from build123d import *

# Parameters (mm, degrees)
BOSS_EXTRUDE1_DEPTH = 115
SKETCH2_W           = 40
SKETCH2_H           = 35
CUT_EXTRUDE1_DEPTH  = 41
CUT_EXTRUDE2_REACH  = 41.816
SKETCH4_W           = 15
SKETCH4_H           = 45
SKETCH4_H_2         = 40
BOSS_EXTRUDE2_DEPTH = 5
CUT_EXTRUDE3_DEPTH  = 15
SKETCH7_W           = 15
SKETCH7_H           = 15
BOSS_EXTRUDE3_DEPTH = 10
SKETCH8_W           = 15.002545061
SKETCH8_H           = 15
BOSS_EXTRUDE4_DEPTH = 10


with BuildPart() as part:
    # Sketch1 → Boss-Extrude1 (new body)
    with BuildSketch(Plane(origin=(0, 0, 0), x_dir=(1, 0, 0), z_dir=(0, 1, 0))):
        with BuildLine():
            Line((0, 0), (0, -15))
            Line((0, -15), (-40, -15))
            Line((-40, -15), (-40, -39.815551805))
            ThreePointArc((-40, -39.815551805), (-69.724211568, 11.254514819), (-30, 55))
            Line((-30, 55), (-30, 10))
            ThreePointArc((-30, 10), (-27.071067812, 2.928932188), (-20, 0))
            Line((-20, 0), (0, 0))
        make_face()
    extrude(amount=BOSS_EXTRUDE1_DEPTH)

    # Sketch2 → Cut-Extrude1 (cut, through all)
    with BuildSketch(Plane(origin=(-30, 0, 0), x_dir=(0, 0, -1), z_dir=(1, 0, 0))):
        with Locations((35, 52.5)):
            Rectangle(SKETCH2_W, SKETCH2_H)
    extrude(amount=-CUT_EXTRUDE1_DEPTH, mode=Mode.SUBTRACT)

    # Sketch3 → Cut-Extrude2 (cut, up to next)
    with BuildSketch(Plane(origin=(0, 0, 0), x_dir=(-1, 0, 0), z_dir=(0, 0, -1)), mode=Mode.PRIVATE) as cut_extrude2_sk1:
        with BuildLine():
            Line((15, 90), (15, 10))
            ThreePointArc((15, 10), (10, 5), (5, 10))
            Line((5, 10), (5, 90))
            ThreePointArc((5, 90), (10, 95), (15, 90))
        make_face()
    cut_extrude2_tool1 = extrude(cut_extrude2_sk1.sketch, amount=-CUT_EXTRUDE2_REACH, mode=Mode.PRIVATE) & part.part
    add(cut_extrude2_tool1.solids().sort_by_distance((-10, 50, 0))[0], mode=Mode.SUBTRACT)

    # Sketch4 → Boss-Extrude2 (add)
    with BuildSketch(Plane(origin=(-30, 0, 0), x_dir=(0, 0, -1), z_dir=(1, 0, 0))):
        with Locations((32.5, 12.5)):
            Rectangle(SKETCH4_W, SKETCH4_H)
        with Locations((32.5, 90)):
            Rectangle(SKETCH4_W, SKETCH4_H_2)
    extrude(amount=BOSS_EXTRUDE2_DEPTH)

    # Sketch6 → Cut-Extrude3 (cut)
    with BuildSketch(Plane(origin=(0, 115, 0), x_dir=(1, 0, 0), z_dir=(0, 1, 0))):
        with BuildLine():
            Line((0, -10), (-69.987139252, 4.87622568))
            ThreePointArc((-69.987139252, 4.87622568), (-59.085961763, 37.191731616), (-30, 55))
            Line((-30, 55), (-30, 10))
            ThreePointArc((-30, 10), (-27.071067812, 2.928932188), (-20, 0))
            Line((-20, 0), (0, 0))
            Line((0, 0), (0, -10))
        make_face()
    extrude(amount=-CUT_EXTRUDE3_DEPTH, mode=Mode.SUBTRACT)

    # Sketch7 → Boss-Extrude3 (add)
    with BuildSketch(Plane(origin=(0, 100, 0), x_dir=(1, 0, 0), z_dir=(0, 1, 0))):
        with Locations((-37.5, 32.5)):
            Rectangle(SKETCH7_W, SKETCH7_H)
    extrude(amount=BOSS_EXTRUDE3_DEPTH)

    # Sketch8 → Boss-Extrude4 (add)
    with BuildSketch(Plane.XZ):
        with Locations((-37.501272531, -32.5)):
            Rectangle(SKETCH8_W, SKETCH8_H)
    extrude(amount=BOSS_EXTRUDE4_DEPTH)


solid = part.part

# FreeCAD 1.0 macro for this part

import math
import FreeCAD as App
import Part
import Sketcher
from FreeCAD import Vector
Q = App.Units.Quantity

doc = App.newDocument("Part")
body = doc.addObject("PartDesign::Body", "Body")

# Sketch on XZ plane
sketch1 = body.newObject("Sketcher::SketchObject", "Sketch")
sketch1.AttachmentSupport = (doc.getObject("XZ_Plane"), [""])
sketch1.MapMode = "FlatFace"
sketch1.addGeometry([
    Part.LineSegment(Vector(0, 15, 0), Vector(0, 0, 0)),  # 0
    Part.LineSegment(Vector(0, 0, 0), Vector(-20, 0, 0)),  # 1
    Part.ArcOfCircle(Part.Circle(Vector(-20, -10, 0), Vector(0, 0, 1), 10), math.radians(90), math.radians(180)),  # 2
    Part.LineSegment(Vector(-30, -10, 0), Vector(-30, -55, 0)),  # 3
    Part.ArcOfCircle(Part.Circle(Vector(-20, -6, 0), Vector(0, 0, 1), 50), math.radians(114), math.radians(258)),  # 4
    Part.LineSegment(Vector(-40, 40, 0), Vector(-40, 15, 0)),  # 5
    Part.LineSegment(Vector(-40, 15, 0), Vector(0, 15, 0)),  # 6
], False)
sketch1.addConstraint([
    Sketcher.Constraint("Coincident", 0, 2, 1, 1),
    Sketcher.Constraint("Tangent", 1, 2, 2, 1),
    Sketcher.Constraint("Tangent", 2, 2, 3, 1),
    Sketcher.Constraint("Coincident", 3, 2, 4, 2),
    Sketcher.Constraint("Coincident", 4, 1, 5, 1),
    Sketcher.Constraint("Coincident", 5, 2, 6, 1),
    Sketcher.Constraint("Coincident", 6, 2, 0, 1),
    Sketcher.Constraint("Vertical", 0),
    Sketcher.Constraint("Horizontal", 1),
    Sketcher.Constraint("Vertical", 3),
    Sketcher.Constraint("Vertical", 5),
    Sketcher.Constraint("Horizontal", 6),
    Sketcher.Constraint("Coincident", 0, 2, -1, 1),
    Sketcher.Constraint("Vertical", 2, 3, 4, 3),
    Sketcher.Constraint("Radius", 2, Q("10 mm")),
    Sketcher.Constraint("Radius", 4, Q("50 mm")),
    Sketcher.Constraint("DistanceX", 1, 2, 1, 1, Q("20 mm")),
    Sketcher.Constraint("DistanceX", 6, 1, 6, 2, Q("40 mm")),
    Sketcher.Constraint("DistanceY", 0, 2, 0, 1, Q("15 mm")),
    Sketcher.Constraint("DistanceY", 3, 2, 3, 1, Q("45 mm")),
])
pad1 = body.newObject("PartDesign::Pad", "Pad")
pad1.Profile = sketch1
pad1.Length = 115
pad1.Reversed = True

# Sketch on YZ plane
sketch2 = body.newObject("Sketcher::SketchObject", "Sketch001")
sketch2.AttachmentSupport = (doc.getObject("YZ_Plane"), [""])
sketch2.MapMode = "FlatFace"
sketch2.AttachmentOffset = App.Placement(Vector(0, 0, -30), App.Rotation())
sketch2.addGeometry([
    Part.LineSegment(Vector(70, -15, 0), Vector(35, -15, 0)),
    Part.LineSegment(Vector(35, -15, 0), Vector(35, -55, 0)),
    Part.LineSegment(Vector(35, -55, 0), Vector(70, -55, 0)),
    Part.LineSegment(Vector(70, -55, 0), Vector(70, -15, 0)),
], False)
sketch2.addConstraint([
    Sketcher.Constraint("Coincident", 0, 2, 1, 1),
    Sketcher.Constraint("Coincident", 1, 2, 2, 1),
    Sketcher.Constraint("Coincident", 2, 2, 3, 1),
    Sketcher.Constraint("Coincident", 3, 2, 0, 1),
    Sketcher.Constraint("Horizontal", 0),
    Sketcher.Constraint("Vertical", 1),
    Sketcher.Constraint("Horizontal", 2),
    Sketcher.Constraint("Vertical", 3),
    Sketcher.Constraint("DistanceX", 0, 2, 0, 1, Q("35 mm")),
    Sketcher.Constraint("DistanceY", 1, 2, 1, 1, Q("40 mm")),
    Sketcher.Constraint("DistanceX", -1, 1, 0, 2, Q("35 mm")),
    Sketcher.Constraint("DistanceY", 0, 2, -1, 1, Q("15 mm")),
])
pocket1 = body.newObject("PartDesign::Pocket", "Pocket")
pocket1.Profile = sketch2
pocket1.Type = "ThroughAll"

# Sketch on XY plane
sketch3 = body.newObject("Sketcher::SketchObject", "Sketch002")
sketch3.AttachmentSupport = (doc.getObject("XY_Plane"), [""])
sketch3.MapMode = "FlatFace"
sketch3.addGeometry([
    Part.LineSegment(Vector(-15, 10, 0), Vector(-15, 90, 0)),
    Part.ArcOfCircle(Part.Circle(Vector(-10, 90, 0), Vector(0, 0, 1), 5), math.radians(0), math.radians(180)),
    Part.LineSegment(Vector(-5, 90, 0), Vector(-5, 10, 0)),
    Part.ArcOfCircle(Part.Circle(Vector(-10, 10, 0), Vector(0, 0, 1), 5), math.radians(180), math.radians(360)),
], False)
sketch3.addConstraint([
    Sketcher.Constraint("Tangent", 0, 2, 1, 2),
    Sketcher.Constraint("Tangent", 1, 1, 2, 1),
    Sketcher.Constraint("Tangent", 2, 2, 3, 2),
    Sketcher.Constraint("Tangent", 3, 1, 0, 1),
    Sketcher.Constraint("Vertical", 0),
    Sketcher.Constraint("Vertical", 2),
    Sketcher.Constraint("Radius", 1, Q("5 mm")),
    Sketcher.Constraint("DistanceY", 0, 1, 0, 2, Q("80 mm")),
    Sketcher.Constraint("DistanceX", 1, 3, -1, 1, Q("10 mm")),
    Sketcher.Constraint("DistanceY", -1, 1, 1, 3, Q("90 mm")),
])
pocket2 = body.newObject("PartDesign::Pocket", "Pocket001")
pocket2.Profile = sketch3
pocket2.Type = "UpToFirst"
pocket2.Reversed = True

# Sketch on YZ plane
sketch4 = body.newObject("Sketcher::SketchObject", "Sketch003")
sketch4.AttachmentSupport = (doc.getObject("YZ_Plane"), [""])
sketch4.MapMode = "FlatFace"
sketch4.AttachmentOffset = App.Placement(Vector(0, 0, -30), App.Rotation())
sketch4.addGeometry([
    Part.LineSegment(Vector(35, -25, 0), Vector(-10, -25, 0)),  # 0
    Part.LineSegment(Vector(-10, -25, 0), Vector(-10, -40, 0)),  # 1
    Part.LineSegment(Vector(-10, -40, 0), Vector(35, -40, 0)),  # 2
    Part.LineSegment(Vector(35, -40, 0), Vector(35, -25, 0)),  # 3
    Part.LineSegment(Vector(110, -25, 0), Vector(70, -25, 0)),  # 4
    Part.LineSegment(Vector(70, -25, 0), Vector(70, -40, 0)),  # 5
    Part.LineSegment(Vector(70, -40, 0), Vector(110, -40, 0)),  # 6
    Part.LineSegment(Vector(110, -40, 0), Vector(110, -25, 0)),  # 7
], False)
sketch4.addConstraint([
    Sketcher.Constraint("Coincident", 0, 2, 1, 1),
    Sketcher.Constraint("Coincident", 1, 2, 2, 1),
    Sketcher.Constraint("Coincident", 2, 2, 3, 1),
    Sketcher.Constraint("Coincident", 3, 2, 0, 1),
    Sketcher.Constraint("Coincident", 4, 2, 5, 1),
    Sketcher.Constraint("Coincident", 5, 2, 6, 1),
    Sketcher.Constraint("Coincident", 6, 2, 7, 1),
    Sketcher.Constraint("Coincident", 7, 2, 4, 1),
    Sketcher.Constraint("Horizontal", 0),
    Sketcher.Constraint("Vertical", 1),
    Sketcher.Constraint("Horizontal", 2),
    Sketcher.Constraint("Vertical", 3),
    Sketcher.Constraint("Horizontal", 4),
    Sketcher.Constraint("Vertical", 5),
    Sketcher.Constraint("Horizontal", 6),
    Sketcher.Constraint("Vertical", 7),
    Sketcher.Constraint("Horizontal", 3, 2, 4, 2),
    Sketcher.Constraint("Horizontal", 2, 2, 5, 2),
    Sketcher.Constraint("DistanceX", 0, 2, 0, 1, Q("45 mm")),
    Sketcher.Constraint("DistanceX", 4, 2, 4, 1, Q("40 mm")),
    Sketcher.Constraint("DistanceY", 1, 2, 1, 1, Q("15 mm")),
    Sketcher.Constraint("DistanceX", 0, 2, -1, 1, Q("10 mm")),
    Sketcher.Constraint("DistanceY", 0, 2, -1, 1, Q("25 mm")),
    Sketcher.Constraint("DistanceX", -1, 1, 4, 2, Q("70 mm")),
])
pad2 = body.newObject("PartDesign::Pad", "Pad001")
pad2.Profile = sketch4
pad2.Length = 5

# Sketch on XZ plane
sketch5 = body.newObject("Sketcher::SketchObject", "Sketch004")
sketch5.AttachmentSupport = (doc.getObject("XZ_Plane"), [""])
sketch5.MapMode = "FlatFace"
sketch5.AttachmentOffset = App.Placement(Vector(0, 0, -115), App.Rotation())
sketch5.addGeometry([
    Part.LineSegment(Vector(-70, -5, 0), Vector(0, 10, 0)),  # 0
    Part.LineSegment(Vector(0, 10, 0), Vector(0, 0, 0)),  # 1
    Part.LineSegment(Vector(0, 0, 0), Vector(-20, 0, 0)),  # 2
    Part.ArcOfCircle(Part.Circle(Vector(-20, -10, 0), Vector(0, 0, 1), 10), math.radians(90), math.radians(180)),  # 3
    Part.LineSegment(Vector(-30, -10, 0), Vector(-30, -55, 0)),  # 4
    Part.ArcOfCircle(Part.Circle(Vector(-20, -6, 0), Vector(0, 0, 1), 50), math.radians(179), math.radians(258)),  # 5
], False)
sketch5.addConstraint([
    Sketcher.Constraint("Coincident", 0, 2, 1, 1),
    Sketcher.Constraint("Coincident", 1, 2, 2, 1),
    Sketcher.Constraint("Tangent", 2, 2, 3, 1),
    Sketcher.Constraint("Tangent", 3, 2, 4, 1),
    Sketcher.Constraint("Coincident", 4, 2, 5, 2),
    Sketcher.Constraint("Coincident", 5, 1, 0, 1),
    Sketcher.Constraint("Vertical", 1),
    Sketcher.Constraint("Horizontal", 2),
    Sketcher.Constraint("Vertical", 4),
    Sketcher.Constraint("Coincident", 1, 2, -1, 1),
    Sketcher.Constraint("Vertical", 3, 3, 5, 3),
    Sketcher.Constraint("Radius", 3, Q("10 mm")),
    Sketcher.Constraint("Radius", 5, Q("50 mm")),
    Sketcher.Constraint("DistanceX", 2, 2, 2, 1, Q("20 mm")),
    Sketcher.Constraint("DistanceY", 1, 2, 1, 1, Q("10 mm")),
    Sketcher.Constraint("DistanceY", 4, 2, 4, 1, Q("45 mm")),
    Sketcher.Constraint("Angle", 0, Q("12 deg")),
])
pocket3 = body.newObject("PartDesign::Pocket", "Pocket002")
pocket3.Profile = sketch5
pocket3.Length = 15
pocket3.Reversed = True

# Sketch on XZ plane
sketch6 = body.newObject("Sketcher::SketchObject", "Sketch005")
sketch6.AttachmentSupport = (doc.getObject("XZ_Plane"), [""])
sketch6.MapMode = "FlatFace"
sketch6.AttachmentOffset = App.Placement(Vector(0, 0, -100), App.Rotation())
sketch6.addGeometry([
    Part.LineSegment(Vector(-45, -40, 0), Vector(-45, -25, 0)),
    Part.LineSegment(Vector(-45, -25, 0), Vector(-30, -25, 0)),
    Part.LineSegment(Vector(-30, -25, 0), Vector(-30, -40, 0)),
    Part.LineSegment(Vector(-30, -40, 0), Vector(-45, -40, 0)),
], False)
sketch6.addConstraint([
    Sketcher.Constraint("Coincident", 0, 2, 1, 1),
    Sketcher.Constraint("Coincident", 1, 2, 2, 1),
    Sketcher.Constraint("Coincident", 2, 2, 3, 1),
    Sketcher.Constraint("Coincident", 3, 2, 0, 1),
    Sketcher.Constraint("Vertical", 0),
    Sketcher.Constraint("Horizontal", 1),
    Sketcher.Constraint("Vertical", 2),
    Sketcher.Constraint("Horizontal", 3),
    Sketcher.Constraint("Equal", 3, 0),
    Sketcher.Constraint("DistanceX", 1, 1, 1, 2, Q("15 mm")),
    Sketcher.Constraint("DistanceX", 0, 2, -1, 1, Q("45 mm")),
    Sketcher.Constraint("DistanceY", 0, 2, -1, 1, Q("25 mm")),
])
pad3 = body.newObject("PartDesign::Pad", "Pad002")
pad3.Profile = sketch6
pad3.Length = 10
pad3.Reversed = True

# Sketch on XZ plane
sketch7 = body.newObject("Sketcher::SketchObject", "Sketch006")
sketch7.AttachmentSupport = (doc.getObject("XZ_Plane"), [""])
sketch7.MapMode = "FlatFace"
sketch7.addGeometry([
    Part.LineSegment(Vector(-45, -25, 0), Vector(-45, -40, 0)),
    Part.LineSegment(Vector(-45, -40, 0), Vector(-30, -40, 0)),
    Part.LineSegment(Vector(-30, -40, 0), Vector(-30, -25, 0)),
    Part.LineSegment(Vector(-30, -25, 0), Vector(-45, -25, 0)),
], False)
sketch7.addConstraint([
    Sketcher.Constraint("Coincident", 0, 2, 1, 1),
    Sketcher.Constraint("Coincident", 1, 2, 2, 1),
    Sketcher.Constraint("Coincident", 2, 2, 3, 1),
    Sketcher.Constraint("Coincident", 3, 2, 0, 1),
    Sketcher.Constraint("Vertical", 0),
    Sketcher.Constraint("Horizontal", 1),
    Sketcher.Constraint("Vertical", 2),
    Sketcher.Constraint("Horizontal", 3),
    Sketcher.Constraint("DistanceY", 0, 2, 0, 1, Q("15 mm")),
    Sketcher.Constraint("DistanceY", 0, 2, -1, 1, Q("40 mm")),
    Sketcher.Constraint("DistanceX", 1, 2, -1, 1, Q("30 mm")),
    Sketcher.Constraint("DistanceX", 1, 1, 1, 2, Q("15.002545 mm")),
])
pad4 = body.newObject("PartDesign::Pad", "Pad003")
pad4.Profile = sketch7
pad4.Length = 10

doc.recompute()
